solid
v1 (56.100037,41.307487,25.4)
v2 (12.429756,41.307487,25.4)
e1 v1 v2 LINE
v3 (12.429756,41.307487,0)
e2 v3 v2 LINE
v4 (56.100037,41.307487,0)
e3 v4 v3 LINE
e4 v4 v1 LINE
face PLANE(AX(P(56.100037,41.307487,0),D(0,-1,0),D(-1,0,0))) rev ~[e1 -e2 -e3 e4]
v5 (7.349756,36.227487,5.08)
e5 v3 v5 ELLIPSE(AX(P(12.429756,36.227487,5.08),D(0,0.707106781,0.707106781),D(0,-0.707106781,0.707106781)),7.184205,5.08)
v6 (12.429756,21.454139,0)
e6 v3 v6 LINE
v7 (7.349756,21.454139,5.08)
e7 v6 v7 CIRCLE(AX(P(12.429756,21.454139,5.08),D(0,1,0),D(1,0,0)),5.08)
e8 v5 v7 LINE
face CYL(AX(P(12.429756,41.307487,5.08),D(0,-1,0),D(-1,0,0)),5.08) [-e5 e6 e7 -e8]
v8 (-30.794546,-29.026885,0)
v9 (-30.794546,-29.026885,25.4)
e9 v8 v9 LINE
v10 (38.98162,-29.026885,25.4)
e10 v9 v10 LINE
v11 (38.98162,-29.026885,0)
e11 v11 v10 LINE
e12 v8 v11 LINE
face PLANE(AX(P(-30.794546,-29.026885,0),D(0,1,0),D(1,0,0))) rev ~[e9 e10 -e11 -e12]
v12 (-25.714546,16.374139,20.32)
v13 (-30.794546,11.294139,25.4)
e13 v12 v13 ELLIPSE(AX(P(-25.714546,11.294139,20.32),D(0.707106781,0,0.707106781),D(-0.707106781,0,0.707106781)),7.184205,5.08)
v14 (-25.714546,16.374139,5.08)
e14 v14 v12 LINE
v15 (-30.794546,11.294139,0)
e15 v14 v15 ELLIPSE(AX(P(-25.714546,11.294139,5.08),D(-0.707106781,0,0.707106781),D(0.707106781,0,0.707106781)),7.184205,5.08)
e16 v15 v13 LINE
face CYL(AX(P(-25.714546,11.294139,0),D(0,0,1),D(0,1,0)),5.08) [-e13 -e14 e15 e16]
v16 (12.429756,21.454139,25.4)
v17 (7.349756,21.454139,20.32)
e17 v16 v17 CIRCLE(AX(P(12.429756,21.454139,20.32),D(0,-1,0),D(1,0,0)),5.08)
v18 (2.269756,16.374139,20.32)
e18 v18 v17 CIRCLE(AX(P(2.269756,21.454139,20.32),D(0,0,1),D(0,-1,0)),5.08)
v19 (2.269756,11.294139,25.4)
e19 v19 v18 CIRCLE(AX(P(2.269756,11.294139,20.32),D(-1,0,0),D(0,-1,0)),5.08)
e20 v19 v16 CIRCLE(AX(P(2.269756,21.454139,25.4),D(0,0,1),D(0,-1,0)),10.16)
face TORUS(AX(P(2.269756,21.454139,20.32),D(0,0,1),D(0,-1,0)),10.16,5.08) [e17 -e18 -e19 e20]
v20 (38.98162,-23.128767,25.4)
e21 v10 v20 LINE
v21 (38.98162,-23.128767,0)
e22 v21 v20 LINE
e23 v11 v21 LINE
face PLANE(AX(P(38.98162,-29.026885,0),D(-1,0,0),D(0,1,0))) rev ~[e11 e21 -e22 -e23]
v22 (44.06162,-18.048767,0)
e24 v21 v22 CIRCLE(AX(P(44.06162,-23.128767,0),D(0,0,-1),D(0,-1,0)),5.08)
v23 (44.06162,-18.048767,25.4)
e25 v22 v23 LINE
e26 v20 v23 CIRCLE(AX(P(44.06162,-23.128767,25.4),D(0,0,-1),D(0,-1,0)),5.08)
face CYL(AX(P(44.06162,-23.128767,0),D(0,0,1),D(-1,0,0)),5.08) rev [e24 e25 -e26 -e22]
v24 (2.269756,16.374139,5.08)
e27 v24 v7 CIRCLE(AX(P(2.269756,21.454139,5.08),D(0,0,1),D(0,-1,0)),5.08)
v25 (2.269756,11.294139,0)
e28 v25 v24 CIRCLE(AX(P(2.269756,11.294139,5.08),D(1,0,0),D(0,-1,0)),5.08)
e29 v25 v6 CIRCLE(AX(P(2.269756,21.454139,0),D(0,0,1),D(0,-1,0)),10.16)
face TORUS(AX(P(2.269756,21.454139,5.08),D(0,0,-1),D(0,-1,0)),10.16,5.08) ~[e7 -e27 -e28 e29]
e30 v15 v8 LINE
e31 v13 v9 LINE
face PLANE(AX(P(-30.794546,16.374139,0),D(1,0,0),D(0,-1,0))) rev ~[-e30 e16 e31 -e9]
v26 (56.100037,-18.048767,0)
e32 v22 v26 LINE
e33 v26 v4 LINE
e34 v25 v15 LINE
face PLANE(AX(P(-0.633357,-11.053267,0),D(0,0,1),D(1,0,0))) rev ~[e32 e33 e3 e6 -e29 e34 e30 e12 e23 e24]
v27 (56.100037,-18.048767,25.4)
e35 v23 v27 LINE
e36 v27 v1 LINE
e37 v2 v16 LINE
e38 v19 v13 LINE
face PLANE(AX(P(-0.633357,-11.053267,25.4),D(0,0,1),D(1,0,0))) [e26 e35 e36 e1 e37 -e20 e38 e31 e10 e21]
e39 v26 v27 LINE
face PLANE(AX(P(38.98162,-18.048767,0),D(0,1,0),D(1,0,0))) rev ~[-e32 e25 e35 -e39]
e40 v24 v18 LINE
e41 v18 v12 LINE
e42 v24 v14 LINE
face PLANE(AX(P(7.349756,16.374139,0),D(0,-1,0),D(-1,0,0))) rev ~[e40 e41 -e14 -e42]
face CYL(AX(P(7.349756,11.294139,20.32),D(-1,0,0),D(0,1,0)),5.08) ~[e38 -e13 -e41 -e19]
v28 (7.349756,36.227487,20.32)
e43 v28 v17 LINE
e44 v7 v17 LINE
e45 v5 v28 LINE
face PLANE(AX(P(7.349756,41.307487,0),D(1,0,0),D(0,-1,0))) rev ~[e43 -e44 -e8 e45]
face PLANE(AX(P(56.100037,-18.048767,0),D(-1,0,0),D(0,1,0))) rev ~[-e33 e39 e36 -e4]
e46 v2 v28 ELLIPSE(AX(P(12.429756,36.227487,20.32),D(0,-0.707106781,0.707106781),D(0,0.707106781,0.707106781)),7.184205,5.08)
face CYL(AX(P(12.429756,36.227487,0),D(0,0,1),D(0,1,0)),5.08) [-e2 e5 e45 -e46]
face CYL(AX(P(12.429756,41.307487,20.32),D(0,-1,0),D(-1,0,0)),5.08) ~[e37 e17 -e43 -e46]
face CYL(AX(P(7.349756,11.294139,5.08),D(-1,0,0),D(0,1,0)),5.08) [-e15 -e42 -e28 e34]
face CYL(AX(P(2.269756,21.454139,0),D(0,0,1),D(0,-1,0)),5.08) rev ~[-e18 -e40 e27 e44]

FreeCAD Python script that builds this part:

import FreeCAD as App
import Part
import Sketcher
from FreeCAD import Vector
Q = App.Units.Quantity


def edges_at(feature, points):
    """Names of the edges that pass closest to the given points."""
    edges = feature.Shape.Edges
    near = lambda p: min(range(len(edges)), key=lambda i: edges[i].distToShape(Part.Vertex(*p))[0])
    return sorted({f"Edge{near(p) + 1}" for p in points})

doc = App.newDocument("Part")
body = doc.addObject("PartDesign::Body", "Body")

sketch1 = body.newObject("Sketcher::SketchObject", "Sketch")
sketch1.AttachmentSupport = (doc.getObject("XY_Plane"), [""])
sketch1.MapMode = "FlatFace"
sketch1.addGeometry(Part.LineSegment(Vector(7, 16, 0), Vector(-31, 16, 0)), False)
sketch1.addGeometry(Part.LineSegment(Vector(-31, 16, 0), Vector(-31, -29, 0)), False)
sketch1.addGeometry(Part.LineSegment(Vector(-31, -29, 0), Vector(39, -29, 0)), False)
sketch1.addGeometry(Part.LineSegment(Vector(39, -29, 0), Vector(39, -18, 0)), False)
sketch1.addGeometry(Part.LineSegment(Vector(39, -18, 0), Vector(56, -18, 0)), False)
sketch1.addGeometry(Part.LineSegment(Vector(56, -18, 0), Vector(56, 41, 0)), False)
sketch1.addGeometry(Part.LineSegment(Vector(56, 41, 0), Vector(7, 41, 0)), False)
sketch1.addGeometry(Part.LineSegment(Vector(7, 41, 0), Vector(7, 16, 0)), False)
sketch1.addConstraint(Sketcher.Constraint("Coincident", 0, 2, 1, 1))
sketch1.addConstraint(Sketcher.Constraint("Coincident", 1, 2, 2, 1))
sketch1.addConstraint(Sketcher.Constraint("Coincident", 2, 2, 3, 1))
sketch1.addConstraint(Sketcher.Constraint("Coincident", 3, 2, 4, 1))
sketch1.addConstraint(Sketcher.Constraint("Coincident", 4, 2, 5, 1))
sketch1.addConstraint(Sketcher.Constraint("Coincident", 5, 2, 6, 1))
sketch1.addConstraint(Sketcher.Constraint("Coincident", 6, 2, 7, 1))
sketch1.addConstraint(Sketcher.Constraint("Coincident", 7, 2, 0, 1))
sketch1.addConstraint(Sketcher.Constraint("Horizontal", 0))
sketch1.addConstraint(Sketcher.Constraint("Vertical", 1))
sketch1.addConstraint(Sketcher.Constraint("Horizontal", 2))
sketch1.addConstraint(Sketcher.Constraint("Vertical", 3))
sketch1.addConstraint(Sketcher.Constraint("Horizontal", 4))
sketch1.addConstraint(Sketcher.Constraint("Vertical", 5))
sketch1.addConstraint(Sketcher.Constraint("Horizontal", 6))
sketch1.addConstraint(Sketcher.Constraint("Vertical", 7))
sketch1.addConstraint(Sketcher.Constraint("DistanceX", 6, 2, 6, 1, 48.750281))
sketch1.addConstraint(Sketcher.Constraint("DistanceX", 0, 2, 0, 1, 38.144302))
sketch1.addConstraint(Sketcher.Constraint("DistanceX", 2, 1, 2, 2, 69.776166))
sketch1.addConstraint(Sketcher.Constraint("DistanceY", 1, 2, 1, 1, 45.401024))
sketch1.addConstraint(Sketcher.Constraint("DistanceY", 3, 1, 3, 2, 10.978118))
sketch1.addConstraint(Sketcher.Constraint("DistanceY", 5, 1, 5, 2, 59.356254))
sketch1.addConstraint(Sketcher.Constraint("DistanceY", -1, 1, 0, 2, 16.374139))
sketch1.addConstraint(Sketcher.Constraint("DistanceX", -1, 1, 2, 2, 38.98162))
pad1 = body.newObject("PartDesign::Pad", "Pad")
pad1.Profile = sketch1
pad1.Length = Q("1 in")
doc.recompute()

fillet = body.newObject("PartDesign::Fillet", "Fillet")
fillet.Base = (pad1, edges_at(pad1, [
    (7.35, 16.374, 12.7),
    (-30.795, 16.374, 12.7),
    (-11.722, 16.374, 0),
    (-11.722, 16.374, 25.4),
    (7.35, 41.307, 12.7),
    (7.35, 28.841, 0),
    (7.35, 28.841, 25.4),
    (38.982, -18.049, 12.7),
]))
fillet.Radius = Q("0.2 in")

doc.recompute()
